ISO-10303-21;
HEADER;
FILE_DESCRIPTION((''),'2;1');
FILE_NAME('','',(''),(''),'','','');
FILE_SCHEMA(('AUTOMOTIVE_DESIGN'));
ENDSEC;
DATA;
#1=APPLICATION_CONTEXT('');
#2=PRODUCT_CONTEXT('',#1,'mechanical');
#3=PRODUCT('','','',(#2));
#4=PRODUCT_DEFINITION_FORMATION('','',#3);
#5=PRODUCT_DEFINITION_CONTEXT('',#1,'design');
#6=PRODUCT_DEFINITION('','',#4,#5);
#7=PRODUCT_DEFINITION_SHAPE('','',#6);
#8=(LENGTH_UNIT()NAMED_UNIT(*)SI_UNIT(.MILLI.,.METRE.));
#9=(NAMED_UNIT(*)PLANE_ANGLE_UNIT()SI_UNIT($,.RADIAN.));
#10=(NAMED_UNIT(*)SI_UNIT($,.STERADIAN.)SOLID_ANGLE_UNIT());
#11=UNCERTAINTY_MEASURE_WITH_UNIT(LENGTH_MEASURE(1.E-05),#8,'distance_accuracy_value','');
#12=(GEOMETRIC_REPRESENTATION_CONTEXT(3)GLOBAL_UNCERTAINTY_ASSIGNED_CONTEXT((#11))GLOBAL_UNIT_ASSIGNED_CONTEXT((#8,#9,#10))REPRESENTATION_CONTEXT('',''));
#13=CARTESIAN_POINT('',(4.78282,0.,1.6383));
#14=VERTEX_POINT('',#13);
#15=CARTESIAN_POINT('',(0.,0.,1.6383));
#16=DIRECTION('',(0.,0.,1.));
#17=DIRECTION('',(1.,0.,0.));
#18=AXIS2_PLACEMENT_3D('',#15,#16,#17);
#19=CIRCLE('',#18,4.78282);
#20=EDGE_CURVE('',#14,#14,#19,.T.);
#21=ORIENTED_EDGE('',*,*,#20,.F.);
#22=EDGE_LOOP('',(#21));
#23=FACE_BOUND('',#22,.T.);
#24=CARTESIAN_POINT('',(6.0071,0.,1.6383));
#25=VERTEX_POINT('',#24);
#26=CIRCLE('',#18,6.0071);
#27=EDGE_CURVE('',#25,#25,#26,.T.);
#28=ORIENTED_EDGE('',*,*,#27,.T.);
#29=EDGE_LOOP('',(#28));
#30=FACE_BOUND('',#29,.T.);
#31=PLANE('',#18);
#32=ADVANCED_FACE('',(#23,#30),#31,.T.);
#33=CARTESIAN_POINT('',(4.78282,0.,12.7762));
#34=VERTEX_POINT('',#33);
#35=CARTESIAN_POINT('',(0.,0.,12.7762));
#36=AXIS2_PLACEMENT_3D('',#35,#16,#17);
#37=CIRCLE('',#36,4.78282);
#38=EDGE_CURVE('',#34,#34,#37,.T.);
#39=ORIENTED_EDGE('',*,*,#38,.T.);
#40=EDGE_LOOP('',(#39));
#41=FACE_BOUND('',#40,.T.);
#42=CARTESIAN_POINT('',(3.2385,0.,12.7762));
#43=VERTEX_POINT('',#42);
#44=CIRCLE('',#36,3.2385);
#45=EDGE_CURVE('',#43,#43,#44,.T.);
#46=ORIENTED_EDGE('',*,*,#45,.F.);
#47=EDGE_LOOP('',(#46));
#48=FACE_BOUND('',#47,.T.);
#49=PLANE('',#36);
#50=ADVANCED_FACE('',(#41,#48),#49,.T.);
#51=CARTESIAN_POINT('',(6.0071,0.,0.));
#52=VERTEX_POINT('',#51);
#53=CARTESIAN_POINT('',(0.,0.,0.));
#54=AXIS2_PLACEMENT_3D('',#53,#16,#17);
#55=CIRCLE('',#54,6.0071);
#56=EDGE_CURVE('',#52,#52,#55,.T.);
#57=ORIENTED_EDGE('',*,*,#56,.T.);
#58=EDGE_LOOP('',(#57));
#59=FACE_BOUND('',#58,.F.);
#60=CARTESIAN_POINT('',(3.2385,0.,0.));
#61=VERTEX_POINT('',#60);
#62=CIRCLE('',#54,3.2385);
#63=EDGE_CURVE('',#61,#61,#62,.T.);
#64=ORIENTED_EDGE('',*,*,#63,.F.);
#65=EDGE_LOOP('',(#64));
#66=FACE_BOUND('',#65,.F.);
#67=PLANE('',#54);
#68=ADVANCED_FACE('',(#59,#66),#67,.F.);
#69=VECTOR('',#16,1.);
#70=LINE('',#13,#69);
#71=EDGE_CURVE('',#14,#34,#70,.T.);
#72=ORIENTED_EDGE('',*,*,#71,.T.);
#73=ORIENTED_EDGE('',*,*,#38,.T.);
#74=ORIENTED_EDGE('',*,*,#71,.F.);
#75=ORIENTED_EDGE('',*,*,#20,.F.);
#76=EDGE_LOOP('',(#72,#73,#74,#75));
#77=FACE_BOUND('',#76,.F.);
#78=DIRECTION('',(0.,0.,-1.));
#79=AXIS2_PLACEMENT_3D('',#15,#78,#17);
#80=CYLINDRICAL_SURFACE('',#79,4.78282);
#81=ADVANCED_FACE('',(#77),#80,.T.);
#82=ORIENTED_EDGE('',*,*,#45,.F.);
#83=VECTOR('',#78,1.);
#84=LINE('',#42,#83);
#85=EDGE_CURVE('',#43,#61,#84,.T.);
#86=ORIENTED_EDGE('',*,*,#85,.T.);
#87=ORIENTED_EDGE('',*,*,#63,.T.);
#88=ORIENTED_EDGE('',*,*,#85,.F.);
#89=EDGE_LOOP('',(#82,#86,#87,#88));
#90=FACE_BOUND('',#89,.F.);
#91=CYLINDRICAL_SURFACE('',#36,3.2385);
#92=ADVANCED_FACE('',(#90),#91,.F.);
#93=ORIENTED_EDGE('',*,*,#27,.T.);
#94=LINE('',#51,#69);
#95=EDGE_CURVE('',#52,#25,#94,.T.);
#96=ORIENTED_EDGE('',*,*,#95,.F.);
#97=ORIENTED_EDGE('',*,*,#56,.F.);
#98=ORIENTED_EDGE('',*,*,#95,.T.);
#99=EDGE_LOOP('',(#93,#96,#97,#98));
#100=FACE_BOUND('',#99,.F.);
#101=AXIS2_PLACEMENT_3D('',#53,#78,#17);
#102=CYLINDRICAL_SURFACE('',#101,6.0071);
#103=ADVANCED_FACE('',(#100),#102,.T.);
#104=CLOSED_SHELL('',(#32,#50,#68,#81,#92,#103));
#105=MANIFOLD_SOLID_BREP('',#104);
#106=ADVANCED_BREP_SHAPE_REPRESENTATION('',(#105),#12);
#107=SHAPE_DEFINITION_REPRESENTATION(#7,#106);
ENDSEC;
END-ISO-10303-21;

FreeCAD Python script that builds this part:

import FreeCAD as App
import Part
import Sketcher
Q = App.Units.Quantity

doc = App.newDocument("Part")
body = doc.addObject("PartDesign::Body", "Body")

sketch1 = body.newObject("Sketcher::SketchObject", "Sketch")
sketch1.AttachmentSupport = (doc.getObject("XY_Plane"), [""])
sketch1.MapMode = "FlatFace"
sketch1.addGeometry(Part.Circle(App.Vector(0, 0, 0), App.Vector(0, 0, 1), 6), False)
sketch1.addConstraint(Sketcher.Constraint("Coincident", 0, 3, -1, 1))
sketch1.addConstraint(Sketcher.Constraint("Diameter", 0, Q("0.473 in")))
pad1 = body.newObject("PartDesign::Pad", "Pad")
pad1.Profile = sketch1
pad1.Length = Q("0.0645 in")

sketch2 = body.newObject("Sketcher::SketchObject", "Sketch001")
sketch2.AttachmentSupport = (doc.getObject("XY_Plane"), [""])
sketch2.MapMode = "FlatFace"
sketch2.AttachmentOffset = App.Placement(App.Vector(0, 0, 0.0645 * 25.4), App.Rotation())
sketch2.addGeometry(Part.Circle(App.Vector(0, 0, 0), App.Vector(0, 0, 1), 4.8), False)
sketch2.addConstraint(Sketcher.Constraint("Coincident", 0, 3, -1, 1))
sketch2.addConstraint(Sketcher.Constraint("Diameter", 0, Q("0.3766 in")))
pad2 = body.newObject("PartDesign::Pad", "Pad001")
pad2.Profile = sketch2
pad2.Length = Q("0.4385 in")

sketch3 = body.newObject("Sketcher::SketchObject", "Sketch002")
sketch3.AttachmentSupport = (doc.getObject("XY_Plane"), [""])
sketch3.MapMode = "FlatFace"
sketch3.AttachmentOffset = App.Placement(App.Vector(0, 0, 0.503 * 25.4), App.Rotation())
sketch3.addGeometry(Part.Circle(App.Vector(0, 0, 0), App.Vector(0, 0, 1), 3.2), False)
sketch3.addConstraint(Sketcher.Constraint("Coincident", 0, 3, -1, 1))
sketch3.addConstraint(Sketcher.Constraint("Diameter", 0, Q("0.255 in")))
pocket1 = body.newObject("PartDesign::Pocket", "Pocket")
pocket1.Profile = sketch3
pocket1.Type = "ThroughAll"

doc.recompute()
